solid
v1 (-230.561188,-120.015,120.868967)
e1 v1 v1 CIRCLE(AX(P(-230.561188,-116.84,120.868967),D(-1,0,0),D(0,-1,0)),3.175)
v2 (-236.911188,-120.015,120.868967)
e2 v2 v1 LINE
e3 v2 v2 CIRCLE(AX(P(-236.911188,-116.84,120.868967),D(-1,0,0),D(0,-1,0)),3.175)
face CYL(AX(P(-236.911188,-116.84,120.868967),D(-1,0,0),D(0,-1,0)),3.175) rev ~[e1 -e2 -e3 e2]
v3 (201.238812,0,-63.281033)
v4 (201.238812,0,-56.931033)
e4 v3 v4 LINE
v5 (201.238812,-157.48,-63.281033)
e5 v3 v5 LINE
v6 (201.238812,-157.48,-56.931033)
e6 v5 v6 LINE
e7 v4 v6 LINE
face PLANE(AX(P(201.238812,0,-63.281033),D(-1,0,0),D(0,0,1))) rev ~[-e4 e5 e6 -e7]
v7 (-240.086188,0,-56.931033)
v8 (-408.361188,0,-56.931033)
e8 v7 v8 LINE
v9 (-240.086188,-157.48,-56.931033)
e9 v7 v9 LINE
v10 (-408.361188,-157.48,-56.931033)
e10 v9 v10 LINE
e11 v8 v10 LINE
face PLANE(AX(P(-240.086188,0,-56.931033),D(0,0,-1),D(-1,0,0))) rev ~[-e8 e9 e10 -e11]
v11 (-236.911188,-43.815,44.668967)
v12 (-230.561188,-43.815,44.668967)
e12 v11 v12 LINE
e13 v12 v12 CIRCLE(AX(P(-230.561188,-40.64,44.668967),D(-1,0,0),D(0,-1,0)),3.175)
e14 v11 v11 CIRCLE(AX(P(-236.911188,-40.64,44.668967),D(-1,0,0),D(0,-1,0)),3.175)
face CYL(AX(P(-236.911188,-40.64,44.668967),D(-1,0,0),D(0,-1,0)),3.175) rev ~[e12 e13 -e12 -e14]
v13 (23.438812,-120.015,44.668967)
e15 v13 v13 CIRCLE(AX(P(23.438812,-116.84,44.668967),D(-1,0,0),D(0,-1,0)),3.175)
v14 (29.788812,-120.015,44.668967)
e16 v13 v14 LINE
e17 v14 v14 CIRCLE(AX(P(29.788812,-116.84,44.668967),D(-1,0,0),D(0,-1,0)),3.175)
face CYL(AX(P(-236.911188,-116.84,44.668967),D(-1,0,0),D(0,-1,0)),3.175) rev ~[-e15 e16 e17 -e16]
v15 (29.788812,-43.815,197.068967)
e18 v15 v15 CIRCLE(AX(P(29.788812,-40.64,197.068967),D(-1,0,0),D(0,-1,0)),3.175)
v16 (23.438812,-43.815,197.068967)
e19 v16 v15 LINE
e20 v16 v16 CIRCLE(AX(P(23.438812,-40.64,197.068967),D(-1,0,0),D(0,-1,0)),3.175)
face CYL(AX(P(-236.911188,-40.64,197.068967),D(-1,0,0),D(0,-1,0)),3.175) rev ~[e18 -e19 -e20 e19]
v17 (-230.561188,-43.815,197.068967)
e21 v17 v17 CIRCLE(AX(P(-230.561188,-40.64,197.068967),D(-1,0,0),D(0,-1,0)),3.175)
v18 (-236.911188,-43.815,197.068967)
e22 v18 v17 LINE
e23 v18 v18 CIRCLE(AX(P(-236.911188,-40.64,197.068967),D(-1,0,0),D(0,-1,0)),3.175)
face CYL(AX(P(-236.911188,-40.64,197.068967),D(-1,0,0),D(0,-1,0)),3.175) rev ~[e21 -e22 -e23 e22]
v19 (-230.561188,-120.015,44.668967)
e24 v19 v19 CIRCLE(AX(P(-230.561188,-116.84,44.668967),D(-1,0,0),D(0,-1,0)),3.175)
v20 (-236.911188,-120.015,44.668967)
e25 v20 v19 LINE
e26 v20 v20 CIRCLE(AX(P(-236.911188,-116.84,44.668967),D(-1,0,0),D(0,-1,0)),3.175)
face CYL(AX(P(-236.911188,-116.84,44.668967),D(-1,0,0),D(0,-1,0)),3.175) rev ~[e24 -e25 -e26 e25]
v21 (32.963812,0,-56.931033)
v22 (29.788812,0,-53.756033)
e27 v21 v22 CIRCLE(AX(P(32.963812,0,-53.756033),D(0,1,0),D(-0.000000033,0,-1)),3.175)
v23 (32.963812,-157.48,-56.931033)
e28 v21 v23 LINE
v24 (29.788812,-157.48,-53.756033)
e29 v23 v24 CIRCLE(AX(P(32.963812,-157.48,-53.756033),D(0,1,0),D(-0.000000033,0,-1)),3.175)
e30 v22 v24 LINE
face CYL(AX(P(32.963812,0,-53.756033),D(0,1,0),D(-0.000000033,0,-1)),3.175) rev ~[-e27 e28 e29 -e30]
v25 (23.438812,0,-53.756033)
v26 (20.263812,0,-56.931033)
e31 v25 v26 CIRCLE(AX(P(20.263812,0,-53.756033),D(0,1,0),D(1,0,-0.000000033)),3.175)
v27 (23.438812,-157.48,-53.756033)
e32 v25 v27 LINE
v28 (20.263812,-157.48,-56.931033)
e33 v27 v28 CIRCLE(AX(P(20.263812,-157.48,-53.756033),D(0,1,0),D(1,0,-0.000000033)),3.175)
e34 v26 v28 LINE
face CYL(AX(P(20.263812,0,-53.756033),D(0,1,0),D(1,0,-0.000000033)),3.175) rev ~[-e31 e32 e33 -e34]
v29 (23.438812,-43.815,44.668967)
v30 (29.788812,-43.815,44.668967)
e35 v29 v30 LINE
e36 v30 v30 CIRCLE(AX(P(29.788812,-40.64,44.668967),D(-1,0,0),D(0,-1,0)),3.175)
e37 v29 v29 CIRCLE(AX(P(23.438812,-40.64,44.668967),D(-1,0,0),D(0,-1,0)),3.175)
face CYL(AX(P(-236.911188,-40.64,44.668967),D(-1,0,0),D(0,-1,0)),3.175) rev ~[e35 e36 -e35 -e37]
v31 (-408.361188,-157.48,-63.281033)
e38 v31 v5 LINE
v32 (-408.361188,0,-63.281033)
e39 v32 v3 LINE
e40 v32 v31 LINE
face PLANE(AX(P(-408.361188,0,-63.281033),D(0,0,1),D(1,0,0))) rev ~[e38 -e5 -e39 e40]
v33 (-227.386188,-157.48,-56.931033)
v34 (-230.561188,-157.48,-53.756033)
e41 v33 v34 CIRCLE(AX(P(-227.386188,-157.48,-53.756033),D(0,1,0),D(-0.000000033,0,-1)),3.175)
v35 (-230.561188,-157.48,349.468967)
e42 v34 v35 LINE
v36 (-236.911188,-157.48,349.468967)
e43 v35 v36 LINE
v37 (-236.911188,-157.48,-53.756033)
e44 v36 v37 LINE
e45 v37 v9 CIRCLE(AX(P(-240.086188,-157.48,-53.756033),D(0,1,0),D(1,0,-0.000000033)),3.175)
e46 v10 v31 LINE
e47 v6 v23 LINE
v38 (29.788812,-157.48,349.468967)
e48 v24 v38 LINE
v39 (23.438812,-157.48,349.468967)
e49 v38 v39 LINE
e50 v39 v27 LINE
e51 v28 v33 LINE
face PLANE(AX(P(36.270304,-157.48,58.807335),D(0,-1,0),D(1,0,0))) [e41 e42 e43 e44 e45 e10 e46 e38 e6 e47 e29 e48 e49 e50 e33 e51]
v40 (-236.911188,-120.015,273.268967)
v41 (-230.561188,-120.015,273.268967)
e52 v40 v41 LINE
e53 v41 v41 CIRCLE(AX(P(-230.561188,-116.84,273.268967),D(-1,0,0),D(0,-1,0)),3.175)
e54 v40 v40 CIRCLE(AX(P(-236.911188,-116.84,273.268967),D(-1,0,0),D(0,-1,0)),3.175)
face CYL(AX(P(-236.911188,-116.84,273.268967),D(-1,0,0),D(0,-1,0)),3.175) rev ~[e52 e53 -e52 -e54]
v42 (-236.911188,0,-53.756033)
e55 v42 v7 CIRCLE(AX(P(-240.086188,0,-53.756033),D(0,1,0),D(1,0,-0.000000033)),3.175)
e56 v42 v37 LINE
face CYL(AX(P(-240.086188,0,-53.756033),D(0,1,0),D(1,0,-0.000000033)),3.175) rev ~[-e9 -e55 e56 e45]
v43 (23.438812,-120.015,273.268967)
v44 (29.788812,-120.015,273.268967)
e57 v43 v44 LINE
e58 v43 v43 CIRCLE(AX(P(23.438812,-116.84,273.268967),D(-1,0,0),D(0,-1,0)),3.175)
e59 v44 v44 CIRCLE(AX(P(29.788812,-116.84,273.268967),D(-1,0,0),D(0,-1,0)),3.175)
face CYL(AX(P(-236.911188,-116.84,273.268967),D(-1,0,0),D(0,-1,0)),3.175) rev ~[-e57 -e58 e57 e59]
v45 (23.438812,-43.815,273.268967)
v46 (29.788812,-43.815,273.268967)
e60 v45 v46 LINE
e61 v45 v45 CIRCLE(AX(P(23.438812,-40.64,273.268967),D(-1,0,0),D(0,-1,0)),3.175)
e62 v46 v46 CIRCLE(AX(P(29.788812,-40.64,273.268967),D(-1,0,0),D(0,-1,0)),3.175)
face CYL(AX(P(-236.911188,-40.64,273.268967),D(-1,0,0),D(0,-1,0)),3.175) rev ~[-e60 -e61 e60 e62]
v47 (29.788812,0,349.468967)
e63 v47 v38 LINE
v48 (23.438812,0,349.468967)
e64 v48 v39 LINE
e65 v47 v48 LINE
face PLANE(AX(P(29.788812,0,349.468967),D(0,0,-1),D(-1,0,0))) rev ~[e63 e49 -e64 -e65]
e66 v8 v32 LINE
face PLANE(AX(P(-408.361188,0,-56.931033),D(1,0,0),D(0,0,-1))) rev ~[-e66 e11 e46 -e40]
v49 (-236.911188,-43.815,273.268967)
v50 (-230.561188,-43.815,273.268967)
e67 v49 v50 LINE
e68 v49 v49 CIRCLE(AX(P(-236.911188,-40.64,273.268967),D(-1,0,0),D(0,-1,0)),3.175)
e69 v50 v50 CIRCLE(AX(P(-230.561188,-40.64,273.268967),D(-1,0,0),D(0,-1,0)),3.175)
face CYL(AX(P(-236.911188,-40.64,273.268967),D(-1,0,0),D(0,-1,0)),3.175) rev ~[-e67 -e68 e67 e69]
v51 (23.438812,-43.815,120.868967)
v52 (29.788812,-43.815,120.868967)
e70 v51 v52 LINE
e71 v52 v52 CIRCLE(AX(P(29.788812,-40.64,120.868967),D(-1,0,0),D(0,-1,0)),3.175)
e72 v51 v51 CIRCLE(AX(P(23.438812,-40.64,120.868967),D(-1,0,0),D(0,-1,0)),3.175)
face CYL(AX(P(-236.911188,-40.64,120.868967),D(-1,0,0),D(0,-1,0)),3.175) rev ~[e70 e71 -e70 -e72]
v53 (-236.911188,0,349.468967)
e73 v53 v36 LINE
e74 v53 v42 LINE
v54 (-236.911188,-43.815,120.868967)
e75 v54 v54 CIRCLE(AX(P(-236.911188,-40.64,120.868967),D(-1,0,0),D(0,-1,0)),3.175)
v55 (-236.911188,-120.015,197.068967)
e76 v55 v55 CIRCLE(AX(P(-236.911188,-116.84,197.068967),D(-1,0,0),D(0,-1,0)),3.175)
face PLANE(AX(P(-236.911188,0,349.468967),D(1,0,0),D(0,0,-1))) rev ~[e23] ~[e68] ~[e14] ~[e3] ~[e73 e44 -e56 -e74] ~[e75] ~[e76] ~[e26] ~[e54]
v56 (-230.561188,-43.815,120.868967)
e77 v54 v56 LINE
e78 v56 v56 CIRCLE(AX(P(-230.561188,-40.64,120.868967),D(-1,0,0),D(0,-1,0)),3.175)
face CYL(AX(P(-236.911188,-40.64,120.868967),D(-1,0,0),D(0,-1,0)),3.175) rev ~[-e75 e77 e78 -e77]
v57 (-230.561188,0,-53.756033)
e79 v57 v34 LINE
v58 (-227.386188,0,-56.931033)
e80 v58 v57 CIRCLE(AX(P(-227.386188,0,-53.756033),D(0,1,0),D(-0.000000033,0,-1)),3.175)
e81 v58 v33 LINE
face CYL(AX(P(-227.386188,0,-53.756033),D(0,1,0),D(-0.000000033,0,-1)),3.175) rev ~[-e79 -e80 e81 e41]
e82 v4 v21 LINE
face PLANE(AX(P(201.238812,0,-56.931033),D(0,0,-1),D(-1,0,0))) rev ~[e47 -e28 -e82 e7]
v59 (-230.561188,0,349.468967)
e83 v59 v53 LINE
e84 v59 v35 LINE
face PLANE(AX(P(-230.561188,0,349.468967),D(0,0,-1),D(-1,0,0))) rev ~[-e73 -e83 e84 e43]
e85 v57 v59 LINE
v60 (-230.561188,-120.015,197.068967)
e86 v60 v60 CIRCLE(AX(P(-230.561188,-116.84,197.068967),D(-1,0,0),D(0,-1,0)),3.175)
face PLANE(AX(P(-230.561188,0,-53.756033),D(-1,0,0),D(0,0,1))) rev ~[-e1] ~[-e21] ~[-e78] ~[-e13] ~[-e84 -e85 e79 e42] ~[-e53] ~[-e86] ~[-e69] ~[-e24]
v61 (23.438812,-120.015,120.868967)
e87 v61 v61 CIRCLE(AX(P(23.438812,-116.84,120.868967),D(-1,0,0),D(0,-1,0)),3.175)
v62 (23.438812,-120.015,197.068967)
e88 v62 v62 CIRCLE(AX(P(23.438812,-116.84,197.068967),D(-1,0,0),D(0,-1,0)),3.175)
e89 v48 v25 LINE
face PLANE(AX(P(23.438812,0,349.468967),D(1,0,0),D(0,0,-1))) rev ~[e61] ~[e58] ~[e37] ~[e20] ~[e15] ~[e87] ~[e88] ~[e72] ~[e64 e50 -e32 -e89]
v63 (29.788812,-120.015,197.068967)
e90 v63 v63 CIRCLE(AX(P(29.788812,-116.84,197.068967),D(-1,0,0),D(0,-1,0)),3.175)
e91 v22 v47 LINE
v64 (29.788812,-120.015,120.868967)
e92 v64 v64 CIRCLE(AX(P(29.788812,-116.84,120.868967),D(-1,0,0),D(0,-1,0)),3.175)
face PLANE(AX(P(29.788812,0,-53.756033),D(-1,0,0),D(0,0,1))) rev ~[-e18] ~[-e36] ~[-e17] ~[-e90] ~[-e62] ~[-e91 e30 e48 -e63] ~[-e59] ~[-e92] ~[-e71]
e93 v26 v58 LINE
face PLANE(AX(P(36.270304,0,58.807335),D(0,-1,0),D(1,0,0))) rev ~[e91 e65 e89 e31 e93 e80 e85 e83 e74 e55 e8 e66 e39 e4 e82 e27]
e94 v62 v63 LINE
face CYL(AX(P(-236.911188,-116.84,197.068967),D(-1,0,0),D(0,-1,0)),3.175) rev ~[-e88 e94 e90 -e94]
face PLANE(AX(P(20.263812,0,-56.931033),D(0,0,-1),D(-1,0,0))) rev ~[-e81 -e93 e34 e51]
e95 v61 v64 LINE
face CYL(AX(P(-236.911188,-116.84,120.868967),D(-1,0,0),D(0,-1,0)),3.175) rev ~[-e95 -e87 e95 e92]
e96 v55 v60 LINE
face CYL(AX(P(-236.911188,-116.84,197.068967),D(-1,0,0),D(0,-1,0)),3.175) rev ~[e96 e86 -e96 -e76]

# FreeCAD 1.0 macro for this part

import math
import FreeCAD as App
import Part
import Sketcher
Q = App.Units.Quantity

doc = App.newDocument("Part")
body = doc.addObject("PartDesign::Body", "Body")

sketch1 = body.newObject("Sketcher::SketchObject", "Sketch")
sketch1.AttachmentSupport = (doc.getObject("XZ_Plane"), [""])
sketch1.MapMode = "FlatFace"
sketch1.addGeometry(Part.LineSegment(App.Vector(201.238812, -63.281033, 0), App.Vector(201.238812, -56.931033, 0)), False)
sketch1.addGeometry(Part.LineSegment(App.Vector(201.238812, -56.931033, 0), App.Vector(32.963812, -56.931033, 0)), False)
sketch1.addGeometry(Part.ArcOfCircle(Part.Circle(App.Vector(32.963812, -53.756033, 0), App.Vector(0, 0, 1), 3.175), math.radians(-179.999998), math.radians(-90.000002)), False)
sketch1.addGeometry(Part.LineSegment(App.Vector(29.788812, -53.756033, 0), App.Vector(29.788812, 349.468967, 0)), False)
sketch1.addGeometry(Part.LineSegment(App.Vector(29.788812, 349.468967, 0), App.Vector(23.438812, 349.468967, 0)), False)
sketch1.addGeometry(Part.LineSegment(App.Vector(23.438812, 349.468967, 0), App.Vector(23.438812, -53.756033, 0)), False)
sketch1.addGeometry(Part.ArcOfCircle(Part.Circle(App.Vector(20.263812, -53.756033, 0), App.Vector(0, 0, 1), 3.175), math.radians(-89.999998), math.radians(-0.000002)), False)
sketch1.addGeometry(Part.LineSegment(App.Vector(20.263812, -56.931033, 0), App.Vector(-227.386188, -56.931033, 0)), False)
sketch1.addGeometry(Part.ArcOfCircle(Part.Circle(App.Vector(-227.386188, -53.756033, 0), App.Vector(0, 0, 1), 3.175), math.radians(-179.999998), math.radians(-90.000002)), False)
sketch1.addGeometry(Part.LineSegment(App.Vector(-230.561188, -53.756033, 0), App.Vector(-230.561188, 349.468967, 0)), False)
sketch1.addGeometry(Part.LineSegment(App.Vector(-230.561188, 349.468967, 0), App.Vector(-236.911188, 349.468967, 0)), False)
sketch1.addGeometry(Part.LineSegment(App.Vector(-236.911188, 349.468967, 0), App.Vector(-236.911188, -53.756033, 0)), False)
sketch1.addGeometry(Part.ArcOfCircle(Part.Circle(App.Vector(-240.086188, -53.756033, 0), App.Vector(0, 0, 1), 3.175), math.radians(-89.999998), math.radians(-0.000002)), False)
sketch1.addGeometry(Part.LineSegment(App.Vector(-240.086188, -56.931033, 0), App.Vector(-408.361188, -56.931033, 0)), False)
sketch1.addGeometry(Part.LineSegment(App.Vector(-408.361188, -56.931033, 0), App.Vector(-408.361188, -63.281033, 0)), False)
sketch1.addGeometry(Part.LineSegment(App.Vector(-408.361188, -63.281033, 0), App.Vector(201.238812, -63.281033, 0)), False)
sketch1.addConstraint(Sketcher.Constraint("Coincident", 0, 2, 1, 1))
sketch1.addConstraint(Sketcher.Constraint("Tangent", 1, 2, 2, 2))
sketch1.addConstraint(Sketcher.Constraint("Tangent", 2, 1, 3, 1))
sketch1.addConstraint(Sketcher.Constraint("Coincident", 3, 2, 4, 1))
sketch1.addConstraint(Sketcher.Constraint("Coincident", 4, 2, 5, 1))
sketch1.addConstraint(Sketcher.Constraint("Tangent", 5, 2, 6, 2))
sketch1.addConstraint(Sketcher.Constraint("Tangent", 6, 1, 7, 1))
sketch1.addConstraint(Sketcher.Constraint("Tangent", 7, 2, 8, 2))
sketch1.addConstraint(Sketcher.Constraint("Tangent", 8, 1, 9, 1))
sketch1.addConstraint(Sketcher.Constraint("Coincident", 9, 2, 10, 1))
sketch1.addConstraint(Sketcher.Constraint("Coincident", 10, 2, 11, 1))
sketch1.addConstraint(Sketcher.Constraint("Tangent", 11, 2, 12, 2))
sketch1.addConstraint(Sketcher.Constraint("Tangent", 12, 1, 13, 1))
sketch1.addConstraint(Sketcher.Constraint("Coincident", 13, 2, 14, 1))
sketch1.addConstraint(Sketcher.Constraint("Coincident", 14, 2, 15, 1))
sketch1.addConstraint(Sketcher.Constraint("Coincident", 15, 2, 0, 1))
sketch1.addConstraint(Sketcher.Constraint("Vertical", 0))
sketch1.addConstraint(Sketcher.Constraint("Horizontal", 1))
sketch1.addConstraint(Sketcher.Constraint("Vertical", 3))
sketch1.addConstraint(Sketcher.Constraint("Horizontal", 4))
sketch1.addConstraint(Sketcher.Constraint("Vertical", 5))
sketch1.addConstraint(Sketcher.Constraint("Horizontal", 7))
sketch1.addConstraint(Sketcher.Constraint("Vertical", 9))
sketch1.addConstraint(Sketcher.Constraint("Horizontal", 10))
sketch1.addConstraint(Sketcher.Constraint("Vertical", 11))
sketch1.addConstraint(Sketcher.Constraint("Horizontal", 13))
sketch1.addConstraint(Sketcher.Constraint("Vertical", 14))
sketch1.addConstraint(Sketcher.Constraint("Horizontal", 15))
sketch1.addConstraint(Sketcher.Constraint("Equal", 2, 6))
sketch1.addConstraint(Sketcher.Constraint("Equal", 6, 8))
sketch1.addConstraint(Sketcher.Constraint("Equal", 8, 12))
sketch1.addConstraint(Sketcher.Constraint("Horizontal", 2, 3, 6, 3))
sketch1.addConstraint(Sketcher.Constraint("Horizontal", 8, 3, 12, 3))
sketch1.addConstraint(Sketcher.Constraint("Horizontal", 4, 2, 9, 2))
sketch1.addConstraint(Sketcher.Constraint("Equal", 4, 10))
sketch1.addConstraint(Sketcher.Constraint("Equal", 1, 13))
sketch1.addConstraint(Sketcher.Constraint("Equal", 10, 0))
sketch1.addConstraint(Sketcher.Constraint("DistanceX", 15, 1, 15, 2, Q("24 in")))
sketch1.addConstraint(Sketcher.Constraint("Radius", 2, Q("0.125 in")))
sketch1.addConstraint(Sketcher.Constraint("DistanceY", 1, 2, 3, 2, Q("16 in")))
sketch1.addConstraint(Sketcher.Constraint("DistanceX", 5, 2, 0, 2, Q("7 in")))
sketch1.addConstraint(Sketcher.Constraint("DistanceX", 4, 2, 4, 1, Q("0.25 in")))
sketch1.addConstraint(Sketcher.Constraint("DistanceX", -1, 1, 6, 3, 20.263812))
sketch1.addConstraint(Sketcher.Constraint("DistanceY", 2, 3, -1, 1, 53.756033))
pad1 = body.newObject("PartDesign::Pad", "Pad")
pad1.Profile = sketch1
pad1.Length = Q("6.2 in")

sketch2 = body.newObject("Sketcher::SketchObject", "Sketch001")
sketch2.AttachmentSupport = (doc.getObject("YZ_Plane"), [""])
sketch2.MapMode = "FlatFace"
sketch2.AttachmentOffset = App.Placement(App.Vector(0, 0, -236.911188), App.Rotation())
sketch2.addGeometry(Part.Circle(App.Vector(-40.64, 273.268967, 0), App.Vector(0, 0, 1), 3.175), False)
sketch2.addGeometry(Part.Circle(App.Vector(-40.64, 197.068967, 0), App.Vector(0, 0, 1), 3.175), False)
sketch2.addGeometry(Part.Circle(App.Vector(-40.64, 120.868967, 0), App.Vector(0, 0, 1), 3.175), False)
sketch2.addGeometry(Part.Circle(App.Vector(-40.64, 44.668967, 0), App.Vector(0, 0, 1), 3.175), False)
sketch2.addGeometry(Part.Circle(App.Vector(-116.84, 44.668967, 0), App.Vector(0, 0, 1), 3.175), False)
sketch2.addGeometry(Part.Circle(App.Vector(-116.84, 120.868967, 0), App.Vector(0, 0, 1), 3.175), False)
sketch2.addGeometry(Part.Circle(App.Vector(-116.84, 197.068967, 0), App.Vector(0, 0, 1), 3.175), False)
sketch2.addGeometry(Part.Circle(App.Vector(-116.84, 273.268967, 0), App.Vector(0, 0, 1), 3.175), False)
sketch2.addConstraint(Sketcher.Constraint("Equal", 0, 1))
sketch2.addConstraint(Sketcher.Constraint("Equal", 1, 2))
sketch2.addConstraint(Sketcher.Constraint("Equal", 2, 3))
sketch2.addConstraint(Sketcher.Constraint("Equal", 3, 4))
sketch2.addConstraint(Sketcher.Constraint("Equal", 4, 5))
sketch2.addConstraint(Sketcher.Constraint("Equal", 5, 6))
sketch2.addConstraint(Sketcher.Constraint("Equal", 6, 7))
sketch2.addConstraint(Sketcher.Constraint("Horizontal", 3, 3, 4, 3))
sketch2.addConstraint(Sketcher.Constraint("Horizontal", 2, 3, 5, 3))
sketch2.addConstraint(Sketcher.Constraint("Horizontal", 1, 3, 6, 3))
sketch2.addConstraint(Sketcher.Constraint("Horizontal", 0, 3, 7, 3))
sketch2.addConstraint(Sketcher.Constraint("Vertical", 0, 3, 1, 3))
sketch2.addConstraint(Sketcher.Constraint("Vertical", 1, 3, 2, 3))
sketch2.addConstraint(Sketcher.Constraint("Vertical", 2, 3, 3, 3))
sketch2.addConstraint(Sketcher.Constraint("Vertical", 4, 3, 5, 3))
sketch2.addConstraint(Sketcher.Constraint("Vertical", 5, 3, 6, 3))
sketch2.addConstraint(Sketcher.Constraint("Vertical", 6, 3, 7, 3))
sketch2.addConstraint(Sketcher.Constraint("Diameter", 0, Q("0.25 in")))
sketch2.addConstraint(Sketcher.Constraint("DistanceY", 1, 3, 0, 3, Q("3 in")))
sketch2.addConstraint(Sketcher.Constraint("DistanceY", 2, 3, 1, 3, Q("3 in")))
sketch2.addConstraint(Sketcher.Constraint("DistanceY", 3, 3, 2, 3, Q("3 in")))
sketch2.addConstraint(Sketcher.Constraint("DistanceX", 4, 3, 3, 3, Q("3 in")))
sketch2.addConstraint(Sketcher.Constraint("DistanceX", 0, 3, -1, 1, Q("1.6 in")))
sketch2.addConstraint(Sketcher.Constraint("DistanceY", -1, 1, 0, 3, 273.268967))
pocket1 = body.newObject("PartDesign::Pocket", "Pocket")
pocket1.Profile = sketch2
pocket1.Type = "ThroughAll"
pocket1.Reversed = True

doc.recompute()
